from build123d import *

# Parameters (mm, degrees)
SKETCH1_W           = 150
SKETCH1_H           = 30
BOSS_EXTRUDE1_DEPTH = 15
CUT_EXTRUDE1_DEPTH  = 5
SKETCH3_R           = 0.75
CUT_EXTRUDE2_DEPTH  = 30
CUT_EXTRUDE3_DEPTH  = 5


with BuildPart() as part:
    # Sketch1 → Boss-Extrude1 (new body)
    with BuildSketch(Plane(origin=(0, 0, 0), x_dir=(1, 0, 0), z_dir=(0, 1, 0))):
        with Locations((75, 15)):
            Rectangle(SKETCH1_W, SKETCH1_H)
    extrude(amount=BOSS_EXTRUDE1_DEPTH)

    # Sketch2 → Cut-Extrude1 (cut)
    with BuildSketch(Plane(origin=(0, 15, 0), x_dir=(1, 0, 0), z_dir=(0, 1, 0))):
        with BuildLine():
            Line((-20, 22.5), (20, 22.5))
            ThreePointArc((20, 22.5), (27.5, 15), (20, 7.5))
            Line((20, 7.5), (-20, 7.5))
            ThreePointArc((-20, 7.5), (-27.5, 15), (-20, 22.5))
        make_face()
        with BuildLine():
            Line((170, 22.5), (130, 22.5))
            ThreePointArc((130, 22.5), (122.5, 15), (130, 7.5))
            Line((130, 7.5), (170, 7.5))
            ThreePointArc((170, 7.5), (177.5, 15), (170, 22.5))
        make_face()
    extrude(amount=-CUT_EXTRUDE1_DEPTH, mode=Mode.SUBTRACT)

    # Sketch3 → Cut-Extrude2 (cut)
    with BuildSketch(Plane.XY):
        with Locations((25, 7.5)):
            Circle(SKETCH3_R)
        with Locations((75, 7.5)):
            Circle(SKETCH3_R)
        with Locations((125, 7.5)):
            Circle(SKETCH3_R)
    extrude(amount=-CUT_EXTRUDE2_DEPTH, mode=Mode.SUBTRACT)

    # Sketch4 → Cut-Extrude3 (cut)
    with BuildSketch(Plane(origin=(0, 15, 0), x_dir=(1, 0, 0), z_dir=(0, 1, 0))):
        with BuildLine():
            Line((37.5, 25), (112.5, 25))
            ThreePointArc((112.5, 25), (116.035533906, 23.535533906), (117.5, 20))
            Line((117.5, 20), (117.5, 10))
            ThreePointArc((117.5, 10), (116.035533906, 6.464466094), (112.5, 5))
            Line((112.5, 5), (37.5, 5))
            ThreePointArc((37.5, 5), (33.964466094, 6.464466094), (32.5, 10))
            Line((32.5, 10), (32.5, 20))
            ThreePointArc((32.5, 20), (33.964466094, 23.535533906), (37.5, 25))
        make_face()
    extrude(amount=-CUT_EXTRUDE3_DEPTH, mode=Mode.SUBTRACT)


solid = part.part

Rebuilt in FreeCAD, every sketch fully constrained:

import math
import FreeCAD as App
import Part
import Sketcher
Q = App.Units.Quantity


def add_polygon(sketch, points):
    """Adds a closed chain of lines whose ends are joined by coincident constraints."""
    first, n = sketch.GeometryCount, len(points)
    for a, b in zip(points, points[1:] + points[:1]):
        sketch.addGeometry(Part.LineSegment(App.Vector(*a, 0), App.Vector(*b, 0)), False)
    for i in range(n):
        sketch.addConstraint(Sketcher.Constraint("Coincident", first + i, 2, first + (i + 1) % n, 1))

doc = App.newDocument("Part")
params = doc.addObject("Spreadsheet::Sheet", "Params")
for row, (alias, value) in enumerate([
    ("sketch1_width", "150 mm"),
    ("sketch1_height", "30 mm"),
    ("pad1_length", "15 mm"),
    ("sketch2_radius", "7.5 mm"),
    ("sketch2_width", "40 mm"),
    ("pocket1_length", "5 mm"),
    ("sketch3_diameter", "1.5 mm"),
    ("pocket2_length", "30 mm"),
    ("sketch4_radius", "5 mm"),
    ("sketch4_width", "75 mm"),
    ("sketch4_height", "10 mm"),
    ("pocket3_length", "5 mm"),
], start=1):
    params.set(f"A{row}", alias)
    params.set(f"B{row}", "=" + value)
    params.setAlias(f"B{row}", alias)

body = doc.addObject("PartDesign::Body", "Body")

sketch1 = doc.addObject("Sketcher::SketchObject", "Sketch")
body.addObject(sketch1)
sketch1.AttachmentSupport = (doc.XZ_Plane, [""])
sketch1.MapMode = "FlatFace"
add_polygon(sketch1, [(0, -30), (0, 0), (150, 0), (150, -30)])
sketch1.addConstraint([
    Sketcher.Constraint("Vertical", 0),
    Sketcher.Constraint("Horizontal", 1),
    Sketcher.Constraint("Vertical", 2),
    Sketcher.Constraint("Horizontal", 3),
    Sketcher.Constraint("Coincident", 0, 2, -1, 1),
    Sketcher.Constraint("DistanceX", 1, 1, 1, 2, Q("150 mm")),
    Sketcher.Constraint("DistanceY", 0, 1, 0, 2, Q("30 mm")),
])
sketch1.setExpression("Constraints[9]", "Params.sketch1_width")
sketch1.setExpression("Constraints[10]", "Params.sketch1_height")
pad1 = doc.addObject("PartDesign::Pad", "Pad")
body.addObject(pad1)
pad1.Profile = sketch1
pad1.setExpression("Length", "Params.pad1_length")
pad1.Reversed = True

sketch2 = doc.addObject("Sketcher::SketchObject", "Sketch001")
body.addObject(sketch2)
sketch2.AttachmentSupport = (doc.XZ_Plane, [""])
sketch2.MapMode = "FlatFace"
sketch2.AttachmentOffset = App.Placement(App.Vector(0, 0, -15), App.Rotation())
sketch2.addGeometry([
    Part.LineSegment(App.Vector(20, -22, 0), App.Vector(-20, -22, 0)),
    Part.ArcOfCircle(Part.Circle(App.Vector(-20, -15, 0), App.Vector(0, 0, 1), 8), math.radians(90), math.radians(270)),
    Part.LineSegment(App.Vector(-20, -8, 0), App.Vector(20, -8, 0)),
    Part.ArcOfCircle(Part.Circle(App.Vector(20, -15, 0), App.Vector(0, 0, 1), 8), math.radians(-90), math.radians(90)),
    Part.LineSegment(App.Vector(170, -22, 0), App.Vector(130, -22, 0)),
    Part.ArcOfCircle(Part.Circle(App.Vector(130, -15, 0), App.Vector(0, 0, 1), 8), math.radians(90), math.radians(270)),
    Part.LineSegment(App.Vector(130, -8, 0), App.Vector(170, -8, 0)),
    Part.ArcOfCircle(Part.Circle(App.Vector(170, -15, 0), App.Vector(0, 0, 1), 8), math.radians(-90), math.radians(90)),
], False)
sketch2.addConstraint([
    Sketcher.Constraint("Tangent", 0, 2, 1, 2),
    Sketcher.Constraint("Tangent", 1, 1, 2, 1),
    Sketcher.Constraint("Tangent", 2, 2, 3, 2),
    Sketcher.Constraint("Tangent", 3, 1, 0, 1),
    Sketcher.Constraint("Tangent", 4, 2, 5, 2),
    Sketcher.Constraint("Tangent", 5, 1, 6, 1),
    Sketcher.Constraint("Tangent", 6, 2, 7, 2),
    Sketcher.Constraint("Tangent", 7, 1, 4, 1),
    Sketcher.Constraint("Horizontal", 0),
    Sketcher.Constraint("Horizontal", 2),
    Sketcher.Constraint("Horizontal", 4),
    Sketcher.Constraint("Horizontal", 6),
    Sketcher.Constraint("Equal", 3, 5),
    Sketcher.Constraint("Horizontal", 3, 3, 5, 3),
    Sketcher.Constraint("Equal", 2, 4),
    Sketcher.Constraint("Radius", 1, Q("7.5 mm")),
    Sketcher.Constraint("DistanceX", 0, 2, 0, 1, Q("40 mm")),
    Sketcher.Constraint("DistanceX", 1, 3, -1, 1, Q("20 mm")),
    Sketcher.Constraint("DistanceY", 1, 3, -1, 1, Q("15 mm")),
    Sketcher.Constraint("DistanceX", -1, 1, 5, 3, Q("130 mm")),
])
sketch2.setExpression("Constraints[15]", "Params.sketch2_radius")
sketch2.setExpression("Constraints[16]", "Params.sketch2_width")
pocket1 = doc.addObject("PartDesign::Pocket", "Pocket")
body.addObject(pocket1)
pocket1.Profile = sketch2
pocket1.setExpression("Length", "Params.pocket1_length")
pocket1.Reversed = True

sketch3 = doc.addObject("Sketcher::SketchObject", "Sketch002")
body.addObject(sketch3)
sketch3.AttachmentSupport = (doc.XY_Plane, [""])
sketch3.MapMode = "FlatFace"
sketch3.addGeometry([
    Part.Circle(App.Vector(25, 7.5, 0), App.Vector(0, 0, 1), 0.8),
    Part.Circle(App.Vector(75, 7.5, 0), App.Vector(0, 0, 1), 0.8),
    Part.Circle(App.Vector(125, 7.5, 0), App.Vector(0, 0, 1), 0.8),
], False)
sketch3.addConstraint([
    Sketcher.Constraint("Equal", 0, 1),
    Sketcher.Constraint("Equal", 1, 2),
    Sketcher.Constraint("Horizontal", 0, 3, 1, 3),
    Sketcher.Constraint("Horizontal", 1, 3, 2, 3),
    Sketcher.Constraint("Diameter", 0, Q("1.5 mm")),
    Sketcher.Constraint("DistanceX", -1, 1, 0, 3, Q("25 mm")),
    Sketcher.Constraint("DistanceX", -1, 1, 1, 3, Q("75 mm")),
    Sketcher.Constraint("DistanceX", -1, 1, 2, 3, Q("125 mm")),
    Sketcher.Constraint("DistanceY", -1, 1, 0, 3, Q("7.5 mm")),
])
sketch3.setExpression("Constraints[4]", "Params.sketch3_diameter")
pocket2 = doc.addObject("PartDesign::Pocket", "Pocket001")
body.addObject(pocket2)
pocket2.Profile = sketch3
pocket2.setExpression("Length", "Params.pocket2_length")

sketch4 = doc.addObject("Sketcher::SketchObject", "Sketch003")
body.addObject(sketch4)
sketch4.AttachmentSupport = (doc.XZ_Plane, [""])
sketch4.MapMode = "FlatFace"
sketch4.AttachmentOffset = App.Placement(App.Vector(0, 0, -15), App.Rotation())
sketch4.addGeometry([
    Part.LineSegment(App.Vector(112, -25, 0), App.Vector(38, -25, 0)),
    Part.ArcOfCircle(Part.Circle(App.Vector(38, -20, 0), App.Vector(0, 0, 1), 5), math.radians(180), math.radians(270)),
    Part.LineSegment(App.Vector(32, -20, 0), App.Vector(32, -10, 0)),
    Part.ArcOfCircle(Part.Circle(App.Vector(38, -10, 0), App.Vector(0, 0, 1), 5), math.radians(90), math.radians(180)),
    Part.LineSegment(App.Vector(38, -5, 0), App.Vector(112, -5, 0)),
    Part.ArcOfCircle(Part.Circle(App.Vector(112, -10, 0), App.Vector(0, 0, 1), 5), math.radians(0), math.radians(90)),
    Part.LineSegment(App.Vector(118, -10, 0), App.Vector(118, -20, 0)),
    Part.ArcOfCircle(Part.Circle(App.Vector(112, -20, 0), App.Vector(0, 0, 1), 5), math.radians(-90), math.radians(0)),
], False)
sketch4.addConstraint([
    Sketcher.Constraint("Tangent", 0, 2, 1, 2),
    Sketcher.Constraint("Tangent", 1, 1, 2, 1),
    Sketcher.Constraint("Tangent", 2, 2, 3, 2),
    Sketcher.Constraint("Tangent", 3, 1, 4, 1),
    Sketcher.Constraint("Tangent", 4, 2, 5, 2),
    Sketcher.Constraint("Tangent", 5, 1, 6, 1),
    Sketcher.Constraint("Tangent", 6, 2, 7, 2),
    Sketcher.Constraint("Tangent", 7, 1, 0, 1),
    Sketcher.Constraint("Horizontal", 0),
    Sketcher.Constraint("Vertical", 2),
    Sketcher.Constraint("Horizontal", 4),
    Sketcher.Constraint("Vertical", 6),
    Sketcher.Constraint("Equal", 1, 3),
    Sketcher.Constraint("Equal", 3, 5),
    Sketcher.Constraint("Equal", 5, 7),
    Sketcher.Constraint("Radius", 1, Q("5 mm")),
    Sketcher.Constraint("DistanceX", 0, 2, 0, 1, Q("75 mm")),
    Sketcher.Constraint("DistanceY", 2, 1, 2, 2, Q("10 mm")),
    Sketcher.Constraint("DistanceY", 1, 3, -1, 1, Q("20 mm")),
    Sketcher.Constraint("DistanceX", -1, 1, 1, 3, Q("37.5 mm")),
])
sketch4.setExpression("Constraints[15]", "Params.sketch4_radius")
sketch4.setExpression("Constraints[16]", "Params.sketch4_width")
sketch4.setExpression("Constraints[17]", "Params.sketch4_height")
pocket3 = doc.addObject("PartDesign::Pocket", "Pocket002")
body.addObject(pocket3)
pocket3.Profile = sketch4
pocket3.setExpression("Length", "Params.pocket3_length")
pocket3.Reversed = True

doc.recompute()
